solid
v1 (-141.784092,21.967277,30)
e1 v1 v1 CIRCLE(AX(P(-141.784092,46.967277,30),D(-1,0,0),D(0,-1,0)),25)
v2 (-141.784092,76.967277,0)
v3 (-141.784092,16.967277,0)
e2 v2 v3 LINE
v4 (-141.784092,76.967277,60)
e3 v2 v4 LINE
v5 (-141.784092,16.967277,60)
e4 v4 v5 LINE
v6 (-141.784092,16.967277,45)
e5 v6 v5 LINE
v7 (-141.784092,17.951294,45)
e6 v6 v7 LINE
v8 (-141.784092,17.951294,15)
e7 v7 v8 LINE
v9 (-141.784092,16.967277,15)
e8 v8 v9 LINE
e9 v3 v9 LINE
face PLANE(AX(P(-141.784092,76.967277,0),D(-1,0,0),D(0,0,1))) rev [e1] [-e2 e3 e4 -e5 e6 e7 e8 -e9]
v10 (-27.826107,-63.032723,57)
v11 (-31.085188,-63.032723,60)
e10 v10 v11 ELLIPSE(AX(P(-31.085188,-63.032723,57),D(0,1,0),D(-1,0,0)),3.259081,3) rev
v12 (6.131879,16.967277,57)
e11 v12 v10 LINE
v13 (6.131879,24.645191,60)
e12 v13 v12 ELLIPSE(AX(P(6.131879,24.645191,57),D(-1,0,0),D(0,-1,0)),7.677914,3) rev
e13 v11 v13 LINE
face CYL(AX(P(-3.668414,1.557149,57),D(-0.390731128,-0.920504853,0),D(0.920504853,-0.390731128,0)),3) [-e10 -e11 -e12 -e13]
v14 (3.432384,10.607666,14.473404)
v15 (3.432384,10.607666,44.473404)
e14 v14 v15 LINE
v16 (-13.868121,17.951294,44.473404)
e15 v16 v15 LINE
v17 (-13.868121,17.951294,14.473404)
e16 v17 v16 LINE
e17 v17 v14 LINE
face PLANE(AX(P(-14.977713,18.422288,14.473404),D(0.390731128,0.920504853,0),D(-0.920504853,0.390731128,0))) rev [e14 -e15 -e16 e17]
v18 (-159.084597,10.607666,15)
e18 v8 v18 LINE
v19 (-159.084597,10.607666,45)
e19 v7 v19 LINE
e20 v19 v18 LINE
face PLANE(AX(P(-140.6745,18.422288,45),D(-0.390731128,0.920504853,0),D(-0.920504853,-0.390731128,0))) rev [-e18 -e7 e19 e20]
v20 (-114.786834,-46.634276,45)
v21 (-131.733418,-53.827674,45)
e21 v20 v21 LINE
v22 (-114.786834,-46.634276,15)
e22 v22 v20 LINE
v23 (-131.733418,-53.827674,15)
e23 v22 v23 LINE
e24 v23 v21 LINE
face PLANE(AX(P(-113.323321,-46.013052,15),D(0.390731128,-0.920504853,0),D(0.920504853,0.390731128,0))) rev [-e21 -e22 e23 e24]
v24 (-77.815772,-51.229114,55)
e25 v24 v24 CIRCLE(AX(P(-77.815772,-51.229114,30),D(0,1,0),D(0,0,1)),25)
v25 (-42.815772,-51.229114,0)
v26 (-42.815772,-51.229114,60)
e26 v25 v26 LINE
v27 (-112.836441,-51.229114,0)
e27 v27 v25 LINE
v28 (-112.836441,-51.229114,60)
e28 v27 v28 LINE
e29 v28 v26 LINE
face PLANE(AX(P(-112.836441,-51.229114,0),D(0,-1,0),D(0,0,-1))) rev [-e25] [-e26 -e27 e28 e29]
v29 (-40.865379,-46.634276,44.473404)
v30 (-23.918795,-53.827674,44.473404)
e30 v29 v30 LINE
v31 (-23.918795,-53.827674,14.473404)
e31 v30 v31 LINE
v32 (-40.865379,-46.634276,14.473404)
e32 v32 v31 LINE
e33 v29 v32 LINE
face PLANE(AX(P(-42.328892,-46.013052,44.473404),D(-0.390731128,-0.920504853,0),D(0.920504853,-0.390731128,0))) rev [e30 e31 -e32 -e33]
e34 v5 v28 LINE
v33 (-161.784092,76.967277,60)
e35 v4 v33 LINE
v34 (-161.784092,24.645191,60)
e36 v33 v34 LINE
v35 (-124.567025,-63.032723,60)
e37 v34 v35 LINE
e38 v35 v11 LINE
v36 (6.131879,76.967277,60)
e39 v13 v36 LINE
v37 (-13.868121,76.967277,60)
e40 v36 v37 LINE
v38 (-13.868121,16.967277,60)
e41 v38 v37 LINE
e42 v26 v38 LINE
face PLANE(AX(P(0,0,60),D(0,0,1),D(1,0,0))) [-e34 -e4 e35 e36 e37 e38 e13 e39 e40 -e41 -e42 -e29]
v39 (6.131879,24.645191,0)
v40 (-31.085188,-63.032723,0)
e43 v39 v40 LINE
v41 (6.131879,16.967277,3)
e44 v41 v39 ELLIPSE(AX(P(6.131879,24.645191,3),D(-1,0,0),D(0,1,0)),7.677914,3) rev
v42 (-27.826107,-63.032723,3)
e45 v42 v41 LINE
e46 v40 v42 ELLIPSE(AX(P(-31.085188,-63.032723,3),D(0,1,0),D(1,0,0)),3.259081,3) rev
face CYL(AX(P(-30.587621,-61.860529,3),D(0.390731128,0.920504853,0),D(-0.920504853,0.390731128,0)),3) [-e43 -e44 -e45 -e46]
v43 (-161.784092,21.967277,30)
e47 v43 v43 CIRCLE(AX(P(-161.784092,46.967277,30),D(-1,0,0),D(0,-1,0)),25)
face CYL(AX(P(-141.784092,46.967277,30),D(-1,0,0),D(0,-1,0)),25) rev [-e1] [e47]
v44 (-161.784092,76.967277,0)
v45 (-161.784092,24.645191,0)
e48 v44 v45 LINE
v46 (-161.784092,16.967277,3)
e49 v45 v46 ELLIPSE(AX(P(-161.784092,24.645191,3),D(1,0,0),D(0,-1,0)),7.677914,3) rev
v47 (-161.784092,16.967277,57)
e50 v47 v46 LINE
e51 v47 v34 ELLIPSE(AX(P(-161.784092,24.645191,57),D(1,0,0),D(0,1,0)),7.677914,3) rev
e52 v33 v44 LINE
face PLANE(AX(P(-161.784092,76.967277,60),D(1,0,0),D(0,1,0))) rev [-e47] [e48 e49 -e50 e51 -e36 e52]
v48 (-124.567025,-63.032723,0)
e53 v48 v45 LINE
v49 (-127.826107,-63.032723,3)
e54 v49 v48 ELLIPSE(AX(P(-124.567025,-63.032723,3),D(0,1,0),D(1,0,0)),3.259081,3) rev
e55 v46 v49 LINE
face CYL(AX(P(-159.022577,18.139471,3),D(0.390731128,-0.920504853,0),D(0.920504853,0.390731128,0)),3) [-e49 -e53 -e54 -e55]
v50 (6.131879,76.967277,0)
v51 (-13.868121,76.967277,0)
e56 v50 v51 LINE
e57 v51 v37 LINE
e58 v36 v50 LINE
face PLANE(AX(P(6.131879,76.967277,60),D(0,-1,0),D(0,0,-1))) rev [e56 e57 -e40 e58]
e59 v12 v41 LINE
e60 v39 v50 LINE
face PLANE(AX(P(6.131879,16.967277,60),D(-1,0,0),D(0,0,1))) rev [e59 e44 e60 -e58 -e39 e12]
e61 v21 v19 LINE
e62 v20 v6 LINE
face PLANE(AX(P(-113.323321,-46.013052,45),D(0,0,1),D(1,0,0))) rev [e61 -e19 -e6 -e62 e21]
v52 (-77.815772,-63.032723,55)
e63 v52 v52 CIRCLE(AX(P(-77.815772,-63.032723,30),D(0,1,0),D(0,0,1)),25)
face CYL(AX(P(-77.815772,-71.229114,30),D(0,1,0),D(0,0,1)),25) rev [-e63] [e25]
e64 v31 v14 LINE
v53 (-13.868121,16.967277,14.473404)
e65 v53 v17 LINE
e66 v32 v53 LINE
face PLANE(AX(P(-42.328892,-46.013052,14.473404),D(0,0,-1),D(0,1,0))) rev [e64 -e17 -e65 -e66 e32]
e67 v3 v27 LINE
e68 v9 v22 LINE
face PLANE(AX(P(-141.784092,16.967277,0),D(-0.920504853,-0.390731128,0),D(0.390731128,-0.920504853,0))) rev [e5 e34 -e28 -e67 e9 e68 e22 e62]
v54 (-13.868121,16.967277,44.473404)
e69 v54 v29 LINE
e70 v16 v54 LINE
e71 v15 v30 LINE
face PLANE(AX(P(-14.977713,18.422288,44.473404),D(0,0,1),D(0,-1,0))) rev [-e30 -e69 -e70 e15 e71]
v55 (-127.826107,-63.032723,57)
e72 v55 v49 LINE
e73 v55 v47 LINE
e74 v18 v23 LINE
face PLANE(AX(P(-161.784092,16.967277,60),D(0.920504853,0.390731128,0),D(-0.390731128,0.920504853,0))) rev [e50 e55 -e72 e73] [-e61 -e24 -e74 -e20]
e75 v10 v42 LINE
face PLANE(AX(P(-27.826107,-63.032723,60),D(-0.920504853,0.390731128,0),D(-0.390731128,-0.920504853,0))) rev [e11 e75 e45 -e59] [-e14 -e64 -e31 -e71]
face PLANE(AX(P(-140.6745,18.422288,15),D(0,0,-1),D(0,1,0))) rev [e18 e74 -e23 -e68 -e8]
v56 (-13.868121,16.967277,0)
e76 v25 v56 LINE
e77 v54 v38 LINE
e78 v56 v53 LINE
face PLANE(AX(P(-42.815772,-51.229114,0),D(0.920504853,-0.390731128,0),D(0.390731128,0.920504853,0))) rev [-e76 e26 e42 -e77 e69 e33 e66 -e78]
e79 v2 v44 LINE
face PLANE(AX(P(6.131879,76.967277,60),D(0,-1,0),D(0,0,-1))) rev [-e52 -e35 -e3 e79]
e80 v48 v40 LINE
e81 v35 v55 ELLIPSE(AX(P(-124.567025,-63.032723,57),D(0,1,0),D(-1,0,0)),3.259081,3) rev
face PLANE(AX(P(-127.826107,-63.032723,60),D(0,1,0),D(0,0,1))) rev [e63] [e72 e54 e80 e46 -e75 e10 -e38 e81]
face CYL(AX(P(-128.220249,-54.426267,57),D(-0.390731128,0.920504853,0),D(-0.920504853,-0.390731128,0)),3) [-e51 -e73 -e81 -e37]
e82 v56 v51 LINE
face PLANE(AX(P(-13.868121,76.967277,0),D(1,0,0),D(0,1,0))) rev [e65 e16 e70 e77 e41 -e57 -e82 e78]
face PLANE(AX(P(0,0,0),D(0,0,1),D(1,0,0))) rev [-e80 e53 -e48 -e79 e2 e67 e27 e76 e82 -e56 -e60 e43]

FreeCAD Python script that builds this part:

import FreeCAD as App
import Part
import Sketcher
Q = App.Units.Quantity


def edges_at(feature, points):
    """Names of the edges that pass closest to the given points."""
    edges = feature.Shape.Edges
    near = lambda p: min(range(len(edges)), key=lambda i: edges[i].distToShape(Part.Vertex(*p))[0])
    return sorted({f"Edge{near(p) + 1}" for p in points})


def add_polygon(sketch, points):
    """Adds a closed chain of lines whose ends are joined by coincident constraints."""
    first, n = sketch.GeometryCount, len(points)
    for a, b in zip(points, points[1:] + points[:1]):
        sketch.addGeometry(Part.LineSegment(App.Vector(*a, 0), App.Vector(*b, 0)), False)
    for i in range(n):
        sketch.addConstraint(Sketcher.Constraint("Coincident", first + i, 2, first + (i + 1) % n, 1))

doc = App.newDocument("Part")
params = doc.addObject("Spreadsheet::Sheet", "Params")
for row, (alias, value) in enumerate([
    ("sketch1_width", "100 mm"),
    ("sketch1_height", "60 mm"),
    ("pad1_length", "60 mm"),
    ("sketch2_height", "60 mm"),
    ("sketch3_diameter", "50 mm"),
    ("pocket2_length", "20 mm"),
    ("sketch4_diameter", "50 mm"),
    ("pocket3_length", "20 mm"),
    ("sketch5_width", "30 mm"),
    ("sketch5_height", "70 mm"),
    ("pocket4_length", "20 mm"),
    ("sketch6_width", "30 mm"),
    ("sketch6_height", "70 mm"),
    ("pocket5_length", "20 mm"),
    ("fillet_radius", "3 mm"),
    ("fillet2_radius", "3 mm"),
    ("fillet3_radius", "3 mm"),
    ("fillet4_radius", "3 mm"),
], start=1):
    params.set(f"A{row}", alias)
    params.set(f"B{row}", "=" + value)
    params.setAlias(f"B{row}", alias)

body = doc.addObject("PartDesign::Body", "Body")

sketch1 = doc.addObject("Sketcher::SketchObject", "Sketch")
body.addObject(sketch1)
sketch1.AttachmentSupport = (doc.XY_Plane, [""])
sketch1.MapMode = "FlatFace"
add_polygon(sketch1, [(-162, 77), (-162, 17), (-128, -63), (-28, -63), (6, 17), (6, 77)])
sketch1.addConstraint(Sketcher.Constraint("Vertical", 0))
sketch1.addConstraint(Sketcher.Constraint("Horizontal", 2))
sketch1.addConstraint(Sketcher.Constraint("Vertical", 4))
sketch1.addConstraint(Sketcher.Constraint("Horizontal", 5))
sketch1.addConstraint(Sketcher.Constraint("Horizontal", 0, 2, 3, 2))
sketch1.addConstraint(Sketcher.Constraint("Equal", 1, 3))
sketch1.addConstraint(Sketcher.Constraint("DistanceX", 2, 1, 2, 2, Q("100 mm")))
sketch1.addConstraint(Sketcher.Constraint("DistanceY", 0, 2, 0, 1, Q("60 mm")))
sketch1.addConstraint(Sketcher.Constraint("Angle", 1, Q("-67 deg")))
sketch1.addConstraint(Sketcher.Constraint("DistanceY", 1, 2, 0, 2, Q("80 mm")))
sketch1.addConstraint(Sketcher.Constraint("DistanceX", 0, 2, -1, 1, Q("161.784092 mm")))
sketch1.addConstraint(Sketcher.Constraint("DistanceY", -1, 1, 0, 2, Q("16.967277 mm")))
sketch1.setExpression("Constraints[12]", "Params.sketch1_width")
sketch1.setExpression("Constraints[13]", "Params.sketch1_height")
pad1 = doc.addObject("PartDesign::Pad", "Pad")
body.addObject(pad1)
pad1.Profile = sketch1
pad1.setExpression("Length", "Params.pad1_length")

sketch2 = doc.addObject("Sketcher::SketchObject", "Sketch001")
body.addObject(sketch2)
sketch2.AttachmentSupport = (doc.XY_Plane, [""])
sketch2.MapMode = "FlatFace"
sketch2.AttachmentOffset = App.Placement(App.Vector(0, 0, 60), App.Rotation())
add_polygon(sketch2, [(-142, 77), (-142, 17), (-113, -51), (-43, -51), (-14, 17), (-14, 77)])
sketch2.addConstraint(Sketcher.Constraint("Vertical", 0))
sketch2.addConstraint(Sketcher.Constraint("Horizontal", 2))
sketch2.addConstraint(Sketcher.Constraint("Vertical", 4))
sketch2.addConstraint(Sketcher.Constraint("Horizontal", 5))
sketch2.addConstraint(Sketcher.Constraint("Horizontal", 0, 2, 3, 2))
sketch2.addConstraint(Sketcher.Constraint("Equal", 1, 3))
sketch2.addConstraint(Sketcher.Constraint("DistanceY", 0, 2, 0, 1, Q("60 mm")))
sketch2.addConstraint(Sketcher.Constraint("Angle", 1, Q("-67 deg")))
sketch2.addConstraint(Sketcher.Constraint("DistanceX", 2, 1, 2, 2, Q("70.020669 mm")))
sketch2.addConstraint(Sketcher.Constraint("DistanceX", 5, 2, 5, 1, Q("127.915971 mm")))
sketch2.addConstraint(Sketcher.Constraint("DistanceX", 0, 2, -1, 1, Q("141.784092 mm")))
sketch2.addConstraint(Sketcher.Constraint("DistanceY", -1, 1, 0, 2, Q("16.967277 mm")))
sketch2.setExpression("Constraints[12]", "Params.sketch2_height")
pocket1 = doc.addObject("PartDesign::Pocket", "Pocket")
body.addObject(pocket1)
pocket1.Profile = sketch2
pocket1.Type = "ThroughAll"

sketch3 = doc.addObject("Sketcher::SketchObject", "Sketch002")
body.addObject(sketch3)
sketch3.AttachmentSupport = (doc.YZ_Plane, [""])
sketch3.MapMode = "FlatFace"
sketch3.AttachmentOffset = App.Placement(App.Vector(0, 0, -161.784092), App.Rotation())
sketch3.addGeometry(Part.Circle(App.Vector(47, 30, 0), App.Vector(0, 0, 1), 25), False)
sketch3.addConstraint(Sketcher.Constraint("Diameter", 0, Q("50 mm")))
sketch3.addConstraint(Sketcher.Constraint("DistanceY", -1, 1, 0, 3, Q("30 mm")))
sketch3.addConstraint(Sketcher.Constraint("DistanceX", -1, 1, 0, 3, Q("46.967277 mm")))
sketch3.setExpression("Constraints[0]", "Params.sketch3_diameter")
pocket2 = doc.addObject("PartDesign::Pocket", "Pocket001")
body.addObject(pocket2)
pocket2.Profile = sketch3
pocket2.setExpression("Length", "Params.pocket2_length")
pocket2.Reversed = True

sketch4 = doc.addObject("Sketcher::SketchObject", "Sketch003")
body.addObject(sketch4)
sketch4.AttachmentSupport = (doc.XZ_Plane, [""])
sketch4.MapMode = "FlatFace"
sketch4.AttachmentOffset = App.Placement(App.Vector(0, 0, 51.229114), App.Rotation())
sketch4.addGeometry(Part.Circle(App.Vector(-78, 30, 0), App.Vector(0, 0, 1), 25), False)
sketch4.addConstraint(Sketcher.Constraint("Diameter", 0, Q("50 mm")))
sketch4.addConstraint(Sketcher.Constraint("DistanceY", -1, 1, 0, 3, Q("30 mm")))
sketch4.addConstraint(Sketcher.Constraint("DistanceX", 0, 3, -1, 1, Q("77.815772 mm")))
sketch4.setExpression("Constraints[0]", "Params.sketch4_diameter")
pocket3 = doc.addObject("PartDesign::Pocket", "Pocket002")
body.addObject(pocket3)
pocket3.Profile = sketch4
pocket3.setExpression("Length", "Params.pocket3_length")
pocket3.Reversed = True

sketch5 = doc.addObject("Sketcher::SketchObject", "Sketch004")
body.addObject(sketch5)
sketch5.Placement = App.Placement(App.Vector(-130.981764, -55.59846, 0), App.Rotation(App.Vector(0, 0, 1), App.Vector(-0.390731128, 0.920504853, 0), App.Vector(-0.920504853, -0.390731128, 0), "ZXY"))
add_polygon(sketch5, [(15, 72), (15, 2), (45, 2), (45, 72)])
sketch5.addConstraint(Sketcher.Constraint("Vertical", 0))
sketch5.addConstraint(Sketcher.Constraint("Horizontal", 1))
sketch5.addConstraint(Sketcher.Constraint("Vertical", 2))
sketch5.addConstraint(Sketcher.Constraint("Horizontal", 3))
sketch5.addConstraint(Sketcher.Constraint("DistanceX", 1, 1, 1, 2, Q("30 mm")))
sketch5.addConstraint(Sketcher.Constraint("DistanceY", 0, 2, 0, 1, Q("70 mm")))
sketch5.addConstraint(Sketcher.Constraint("DistanceX", -1, 1, 0, 2, Q("15 mm")))
sketch5.addConstraint(Sketcher.Constraint("DistanceY", -1, 1, 0, 2, Q("1.923712 mm")))
sketch5.setExpression("Constraints[8]", "Params.sketch5_width")
sketch5.setExpression("Constraints[9]", "Params.sketch5_height")
pocket4 = doc.addObject("PartDesign::Pocket", "Pocket003")
body.addObject(pocket4)
pocket4.Profile = sketch5
pocket4.setExpression("Length", "Params.pocket4_length")

sketch6 = doc.addObject("Sketcher::SketchObject", "Sketch005")
body.addObject(sketch6)
sketch6.Placement = App.Placement(App.Vector(-0.906899, 0.384956, 0), App.Rotation(App.Vector(0, 0, -1), App.Vector(0.390731128, 0.920504853, 0), App.Vector(0.920504853, -0.390731128, 0), "ZXY"))
add_polygon(sketch6, [(-44, 11), (-44, -59), (-14, -59), (-14, 11)])
sketch6.addConstraint(Sketcher.Constraint("Vertical", 0))
sketch6.addConstraint(Sketcher.Constraint("Horizontal", 1))
sketch6.addConstraint(Sketcher.Constraint("Vertical", 2))
sketch6.addConstraint(Sketcher.Constraint("Horizontal", 3))
sketch6.addConstraint(Sketcher.Constraint("DistanceX", 1, 1, 1, 2, Q("30 mm")))
sketch6.addConstraint(Sketcher.Constraint("DistanceY", 0, 2, 0, 1, Q("70 mm")))
sketch6.addConstraint(Sketcher.Constraint("DistanceX", 0, 2, -1, 1, Q("44.473404 mm")))
sketch6.addConstraint(Sketcher.Constraint("DistanceY", 0, 2, -1, 1, Q("58.894453 mm")))
sketch6.setExpression("Constraints[8]", "Params.sketch6_width")
sketch6.setExpression("Constraints[9]", "Params.sketch6_height")
pocket5 = doc.addObject("PartDesign::Pocket", "Pocket004")
body.addObject(pocket5)
pocket5.Profile = sketch6
pocket5.setExpression("Length", "Params.pocket5_length")
doc.recompute()

fillet = doc.addObject("PartDesign::Fillet", "Fillet")
body.addObject(fillet)
fillet.Base = (pocket5, edges_at(pocket5, [(-144.805, -23.033, 0)]))
fillet.setExpression("Radius", "Params.fillet_radius")
doc.recompute()

fillet2 = doc.addObject("PartDesign::Fillet", "Fillet001")
body.addObject(fillet2)
fillet2.Base = (fillet, edges_at(fillet, [(-144.805, -23.033, 60)]))
fillet2.setExpression("Radius", "Params.fillet2_radius")
doc.recompute()

fillet3 = doc.addObject("PartDesign::Fillet", "Fillet002")
body.addObject(fillet3)
fillet3.Base = (fillet2, edges_at(fillet2, [(-10.847, -23.033, 60)]))
fillet3.setExpression("Radius", "Params.fillet3_radius")
doc.recompute()

fillet4 = doc.addObject("PartDesign::Fillet", "Fillet003")
body.addObject(fillet4)
fillet4.Base = (fillet3, edges_at(fillet3, [(-10.847, -23.033, 0)]))
fillet4.setExpression("Radius", "Params.fillet4_radius")

doc.recompute()
